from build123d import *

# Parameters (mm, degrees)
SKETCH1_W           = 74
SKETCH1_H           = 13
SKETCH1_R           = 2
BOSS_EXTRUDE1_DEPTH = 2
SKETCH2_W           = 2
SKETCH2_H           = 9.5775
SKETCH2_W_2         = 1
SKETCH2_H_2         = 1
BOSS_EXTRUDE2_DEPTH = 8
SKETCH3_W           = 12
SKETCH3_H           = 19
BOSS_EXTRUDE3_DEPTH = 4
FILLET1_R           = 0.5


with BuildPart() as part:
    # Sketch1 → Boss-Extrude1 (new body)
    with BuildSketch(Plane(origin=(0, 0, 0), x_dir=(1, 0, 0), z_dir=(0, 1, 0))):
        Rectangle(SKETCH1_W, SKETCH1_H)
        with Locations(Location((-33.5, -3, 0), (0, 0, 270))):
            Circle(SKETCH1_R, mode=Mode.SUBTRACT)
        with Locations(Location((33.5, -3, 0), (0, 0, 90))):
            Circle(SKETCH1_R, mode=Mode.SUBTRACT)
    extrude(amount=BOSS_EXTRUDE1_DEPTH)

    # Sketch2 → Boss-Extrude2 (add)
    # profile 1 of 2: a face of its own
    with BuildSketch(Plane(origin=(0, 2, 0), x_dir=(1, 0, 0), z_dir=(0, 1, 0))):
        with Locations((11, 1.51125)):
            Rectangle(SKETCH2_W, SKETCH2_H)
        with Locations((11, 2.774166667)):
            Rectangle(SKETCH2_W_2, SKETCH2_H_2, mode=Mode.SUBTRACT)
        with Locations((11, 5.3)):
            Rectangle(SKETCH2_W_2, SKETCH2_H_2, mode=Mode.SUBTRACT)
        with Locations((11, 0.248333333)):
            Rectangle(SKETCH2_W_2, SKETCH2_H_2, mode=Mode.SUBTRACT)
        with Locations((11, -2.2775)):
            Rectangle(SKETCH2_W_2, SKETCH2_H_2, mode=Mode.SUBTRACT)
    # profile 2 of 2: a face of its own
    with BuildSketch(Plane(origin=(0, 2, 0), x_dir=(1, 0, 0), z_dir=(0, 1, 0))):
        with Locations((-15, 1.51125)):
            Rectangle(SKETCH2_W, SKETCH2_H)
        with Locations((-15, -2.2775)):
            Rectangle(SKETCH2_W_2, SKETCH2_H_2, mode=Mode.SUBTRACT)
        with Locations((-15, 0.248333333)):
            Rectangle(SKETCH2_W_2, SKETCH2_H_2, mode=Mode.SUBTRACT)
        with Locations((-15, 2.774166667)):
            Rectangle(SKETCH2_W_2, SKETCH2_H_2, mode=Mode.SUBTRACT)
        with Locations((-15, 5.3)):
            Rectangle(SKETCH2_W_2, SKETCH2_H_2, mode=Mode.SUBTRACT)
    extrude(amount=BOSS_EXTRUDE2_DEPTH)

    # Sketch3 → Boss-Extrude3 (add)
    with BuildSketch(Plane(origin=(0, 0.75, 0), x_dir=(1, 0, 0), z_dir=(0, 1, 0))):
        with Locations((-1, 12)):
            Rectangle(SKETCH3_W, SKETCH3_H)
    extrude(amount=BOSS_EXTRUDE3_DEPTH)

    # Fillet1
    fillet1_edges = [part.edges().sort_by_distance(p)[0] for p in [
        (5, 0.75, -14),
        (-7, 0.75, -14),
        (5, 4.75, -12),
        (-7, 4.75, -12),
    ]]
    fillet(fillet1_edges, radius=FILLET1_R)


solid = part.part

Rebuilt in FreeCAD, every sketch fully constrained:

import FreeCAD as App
import Part
import Sketcher
from FreeCAD import Vector
Q = App.Units.Quantity


def edges_at(feature, points):
    """Names of the edges that pass closest to the given points."""
    edges = feature.Shape.Edges
    near = lambda p: min(range(len(edges)), key=lambda i: edges[i].distToShape(Part.Vertex(*p))[0])
    return sorted({f"Edge{near(p) + 1}" for p in points})

doc = App.newDocument("Part")
body = doc.addObject("PartDesign::Body", "Body")

sketch1 = doc.addObject("Sketcher::SketchObject", "Sketch")
body.addObject(sketch1)
sketch1.AttachmentSupport = (doc.XZ_Plane, [""])
sketch1.MapMode = "FlatFace"
sketch1.addGeometry(Part.LineSegment(Vector(-37, -6.5, 0), Vector(-37, 6.5, 0)), False)
sketch1.addGeometry(Part.LineSegment(Vector(-37, 6.5, 0), Vector(37, 6.5, 0)), False)
sketch1.addGeometry(Part.LineSegment(Vector(37, 6.5, 0), Vector(37, -6.5, 0)), False)
sketch1.addGeometry(Part.LineSegment(Vector(37, -6.5, 0), Vector(-37, -6.5, 0)), False)
sketch1.addGeometry(Part.Circle(Vector(-33.5, 3, 0), Vector(0, 0, 1), 2), False)
sketch1.addGeometry(Part.Circle(Vector(33.5, 3, 0), Vector(0, 0, 1), 2), False)
sketch1.addConstraint(Sketcher.Constraint("Coincident", 0, 2, 1, 1))
sketch1.addConstraint(Sketcher.Constraint("Coincident", 1, 2, 2, 1))
sketch1.addConstraint(Sketcher.Constraint("Coincident", 2, 2, 3, 1))
sketch1.addConstraint(Sketcher.Constraint("Coincident", 3, 2, 0, 1))
sketch1.addConstraint(Sketcher.Constraint("Vertical", 0))
sketch1.addConstraint(Sketcher.Constraint("Horizontal", 1))
sketch1.addConstraint(Sketcher.Constraint("Vertical", 2))
sketch1.addConstraint(Sketcher.Constraint("Horizontal", 3))
sketch1.addConstraint(Sketcher.Constraint("Equal", 4, 5))
sketch1.addConstraint(Sketcher.Constraint("Symmetric", 0, 2, 2, 2, -1, 1))
sketch1.addConstraint(Sketcher.Constraint("Symmetric", 4, 3, 5, 3, -2))
sketch1.addConstraint(Sketcher.Constraint("Diameter", 4, Q("4 mm")))
sketch1.addConstraint(Sketcher.Constraint("DistanceX", 1, 1, 1, 2, Q("74 mm")))
sketch1.addConstraint(Sketcher.Constraint("DistanceY", 0, 1, 0, 2, Q("13 mm")))
sketch1.addConstraint(Sketcher.Constraint("DistanceY", -1, 1, 4, 3, Q("3 mm")))
sketch1.addConstraint(Sketcher.Constraint("DistanceX", 4, 3, 5, 3, Q("67 mm")))
pad1 = doc.addObject("PartDesign::Pad", "Pad")
body.addObject(pad1)
pad1.Profile = sketch1
pad1.Length = 2
pad1.Reversed = True

sketch2 = doc.addObject("Sketcher::SketchObject", "Sketch001")
body.addObject(sketch2)
sketch2.AttachmentSupport = (doc.XZ_Plane, [""])
sketch2.MapMode = "FlatFace"
sketch2.AttachmentOffset = App.Placement(Vector(0, 0, -2), App.Rotation())
sketch2.addGeometry(Part.LineSegment(Vector(10, -6.3, 0), Vector(10, 3.2775, 0)), False)
sketch2.addGeometry(Part.LineSegment(Vector(10, 3.2775, 0), Vector(12, 3.2775, 0)), False)
sketch2.addGeometry(Part.LineSegment(Vector(12, 3.2775, 0), Vector(12, -6.3, 0)), False)
sketch2.addGeometry(Part.LineSegment(Vector(12, -6.3, 0), Vector(10, -6.3, 0)), False)
sketch2.addGeometry(Part.LineSegment(Vector(11.5, 2.7775, 0), Vector(10.5, 2.7775, 0)), False)
sketch2.addGeometry(Part.LineSegment(Vector(10.5, 2.7775, 0), Vector(10.5, 1.7775, 0)), False)
sketch2.addGeometry(Part.LineSegment(Vector(10.5, 1.7775, 0), Vector(11.5, 1.7775, 0)), False)
sketch2.addGeometry(Part.LineSegment(Vector(11.5, 1.7775, 0), Vector(11.5, 2.7775, 0)), False)
sketch2.addGeometry(Part.LineSegment(Vector(11.5, 0.251667, 0), Vector(10.5, 0.251667, 0)), False)
sketch2.addGeometry(Part.LineSegment(Vector(10.5, 0.251667, 0), Vector(10.5, -0.748333, 0)), False)
sketch2.addGeometry(Part.LineSegment(Vector(10.5, -0.748333, 0), Vector(11.5, -0.748333, 0)), False)
sketch2.addGeometry(Part.LineSegment(Vector(11.5, -0.748333, 0), Vector(11.5, 0.251667, 0)), False)
sketch2.addGeometry(Part.LineSegment(Vector(11.5, -2.274167, 0), Vector(10.5, -2.274167, 0)), False)
sketch2.addGeometry(Part.LineSegment(Vector(10.5, -2.274167, 0), Vector(10.5, -3.274167, 0)), False)
sketch2.addGeometry(Part.LineSegment(Vector(10.5, -3.274167, 0), Vector(11.5, -3.274167, 0)), False)
sketch2.addGeometry(Part.LineSegment(Vector(11.5, -3.274167, 0), Vector(11.5, -2.274167, 0)), False)
sketch2.addGeometry(Part.LineSegment(Vector(11.5, -4.8, 0), Vector(10.5, -4.8, 0)), False)
sketch2.addGeometry(Part.LineSegment(Vector(10.5, -4.8, 0), Vector(10.5, -5.8, 0)), False)
sketch2.addGeometry(Part.LineSegment(Vector(10.5, -5.8, 0), Vector(11.5, -5.8, 0)), False)
sketch2.addGeometry(Part.LineSegment(Vector(11.5, -5.8, 0), Vector(11.5, -4.8, 0)), False)
sketch2.addGeometry(Part.LineSegment(Vector(-16, -6.3, 0), Vector(-16, 3.2775, 0)), False)
sketch2.addGeometry(Part.LineSegment(Vector(-16, 3.2775, 0), Vector(-14, 3.2775, 0)), False)
sketch2.addGeometry(Part.LineSegment(Vector(-14, 3.2775, 0), Vector(-14, -6.3, 0)), False)
sketch2.addGeometry(Part.LineSegment(Vector(-14, -6.3, 0), Vector(-16, -6.3, 0)), False)
sketch2.addGeometry(Part.LineSegment(Vector(-14.5, 2.7775, 0), Vector(-15.5, 2.7775, 0)), False)
sketch2.addGeometry(Part.LineSegment(Vector(-15.5, 2.7775, 0), Vector(-15.5, 1.7775, 0)), False)
sketch2.addGeometry(Part.LineSegment(Vector(-15.5, 1.7775, 0), Vector(-14.5, 1.7775, 0)), False)
sketch2.addGeometry(Part.LineSegment(Vector(-14.5, 1.7775, 0), Vector(-14.5, 2.7775, 0)), False)
sketch2.addGeometry(Part.LineSegment(Vector(-14.5, 0.251667, 0), Vector(-15.5, 0.251667, 0)), False)
sketch2.addGeometry(Part.LineSegment(Vector(-15.5, 0.251667, 0), Vector(-15.5, -0.748333, 0)), False)
sketch2.addGeometry(Part.LineSegment(Vector(-15.5, -0.748333, 0), Vector(-14.5, -0.748333, 0)), False)
sketch2.addGeometry(Part.LineSegment(Vector(-14.5, -0.748333, 0), Vector(-14.5, 0.251667, 0)), False)
sketch2.addGeometry(Part.LineSegment(Vector(-14.5, -2.274167, 0), Vector(-15.5, -2.274167, 0)), False)
sketch2.addGeometry(Part.LineSegment(Vector(-15.5, -2.274167, 0), Vector(-15.5, -3.274167, 0)), False)
sketch2.addGeometry(Part.LineSegment(Vector(-15.5, -3.274167, 0), Vector(-14.5, -3.274167, 0)), False)
sketch2.addGeometry(Part.LineSegment(Vector(-14.5, -3.274167, 0), Vector(-14.5, -2.274167, 0)), False)
sketch2.addGeometry(Part.LineSegment(Vector(-14.5, -4.8, 0), Vector(-15.5, -4.8, 0)), False)
sketch2.addGeometry(Part.LineSegment(Vector(-15.5, -4.8, 0), Vector(-15.5, -5.8, 0)), False)
sketch2.addGeometry(Part.LineSegment(Vector(-15.5, -5.8, 0), Vector(-14.5, -5.8, 0)), False)
sketch2.addGeometry(Part.LineSegment(Vector(-14.5, -5.8, 0), Vector(-14.5, -4.8, 0)), False)
sketch2.addConstraint(Sketcher.Constraint("Coincident", 0, 2, 1, 1))
sketch2.addConstraint(Sketcher.Constraint("Coincident", 1, 2, 2, 1))
sketch2.addConstraint(Sketcher.Constraint("Coincident", 2, 2, 3, 1))
sketch2.addConstraint(Sketcher.Constraint("Coincident", 3, 2, 0, 1))
sketch2.addConstraint(Sketcher.Constraint("Coincident", 4, 2, 5, 1))
sketch2.addConstraint(Sketcher.Constraint("Coincident", 5, 2, 6, 1))
sketch2.addConstraint(Sketcher.Constraint("Coincident", 6, 2, 7, 1))
sketch2.addConstraint(Sketcher.Constraint("Coincident", 7, 2, 4, 1))
sketch2.addConstraint(Sketcher.Constraint("Coincident", 8, 2, 9, 1))
sketch2.addConstraint(Sketcher.Constraint("Coincident", 9, 2, 10, 1))
sketch2.addConstraint(Sketcher.Constraint("Coincident", 10, 2, 11, 1))
sketch2.addConstraint(Sketcher.Constraint("Coincident", 11, 2, 8, 1))
sketch2.addConstraint(Sketcher.Constraint("Coincident", 12, 2, 13, 1))
sketch2.addConstraint(Sketcher.Constraint("Coincident", 13, 2, 14, 1))
sketch2.addConstraint(Sketcher.Constraint("Coincident", 14, 2, 15, 1))
sketch2.addConstraint(Sketcher.Constraint("Coincident", 15, 2, 12, 1))
sketch2.addConstraint(Sketcher.Constraint("Coincident", 16, 2, 17, 1))
sketch2.addConstraint(Sketcher.Constraint("Coincident", 17, 2, 18, 1))
sketch2.addConstraint(Sketcher.Constraint("Coincident", 18, 2, 19, 1))
sketch2.addConstraint(Sketcher.Constraint("Coincident", 19, 2, 16, 1))
sketch2.addConstraint(Sketcher.Constraint("Coincident", 20, 2, 21, 1))
sketch2.addConstraint(Sketcher.Constraint("Coincident", 21, 2, 22, 1))
sketch2.addConstraint(Sketcher.Constraint("Coincident", 22, 2, 23, 1))
sketch2.addConstraint(Sketcher.Constraint("Coincident", 23, 2, 20, 1))
sketch2.addConstraint(Sketcher.Constraint("Coincident", 24, 2, 25, 1))
sketch2.addConstraint(Sketcher.Constraint("Coincident", 25, 2, 26, 1))
sketch2.addConstraint(Sketcher.Constraint("Coincident", 26, 2, 27, 1))
sketch2.addConstraint(Sketcher.Constraint("Coincident", 27, 2, 24, 1))
sketch2.addConstraint(Sketcher.Constraint("Coincident", 28, 2, 29, 1))
sketch2.addConstraint(Sketcher.Constraint("Coincident", 29, 2, 30, 1))
sketch2.addConstraint(Sketcher.Constraint("Coincident", 30, 2, 31, 1))
sketch2.addConstraint(Sketcher.Constraint("Coincident", 31, 2, 28, 1))
sketch2.addConstraint(Sketcher.Constraint("Coincident", 32, 2, 33, 1))
sketch2.addConstraint(Sketcher.Constraint("Coincident", 33, 2, 34, 1))
sketch2.addConstraint(Sketcher.Constraint("Coincident", 34, 2, 35, 1))
sketch2.addConstraint(Sketcher.Constraint("Coincident", 35, 2, 32, 1))
sketch2.addConstraint(Sketcher.Constraint("Coincident", 36, 2, 37, 1))
sketch2.addConstraint(Sketcher.Constraint("Coincident", 37, 2, 38, 1))
sketch2.addConstraint(Sketcher.Constraint("Coincident", 38, 2, 39, 1))
sketch2.addConstraint(Sketcher.Constraint("Coincident", 39, 2, 36, 1))
sketch2.addConstraint(Sketcher.Constraint("Vertical", 0))
sketch2.addConstraint(Sketcher.Constraint("Horizontal", 1))
sketch2.addConstraint(Sketcher.Constraint("Vertical", 2))
sketch2.addConstraint(Sketcher.Constraint("Horizontal", 3))
sketch2.addConstraint(Sketcher.Constraint("Horizontal", 4))
sketch2.addConstraint(Sketcher.Constraint("Vertical", 5))
sketch2.addConstraint(Sketcher.Constraint("Horizontal", 6))
sketch2.addConstraint(Sketcher.Constraint("Vertical", 7))
sketch2.addConstraint(Sketcher.Constraint("Horizontal", 8))
sketch2.addConstraint(Sketcher.Constraint("Vertical", 9))
sketch2.addConstraint(Sketcher.Constraint("Horizontal", 10))
sketch2.addConstraint(Sketcher.Constraint("Vertical", 11))
sketch2.addConstraint(Sketcher.Constraint("Horizontal", 12))
sketch2.addConstraint(Sketcher.Constraint("Vertical", 13))
sketch2.addConstraint(Sketcher.Constraint("Horizontal", 14))
sketch2.addConstraint(Sketcher.Constraint("Vertical", 15))
sketch2.addConstraint(Sketcher.Constraint("Horizontal", 16))
sketch2.addConstraint(Sketcher.Constraint("Vertical", 17))
sketch2.addConstraint(Sketcher.Constraint("Horizontal", 18))
sketch2.addConstraint(Sketcher.Constraint("Vertical", 19))
sketch2.addConstraint(Sketcher.Constraint("Vertical", 20))
sketch2.addConstraint(Sketcher.Constraint("Horizontal", 21))
sketch2.addConstraint(Sketcher.Constraint("Vertical", 22))
sketch2.addConstraint(Sketcher.Constraint("Horizontal", 23))
sketch2.addConstraint(Sketcher.Constraint("Horizontal", 24))
sketch2.addConstraint(Sketcher.Constraint("Vertical", 25))
sketch2.addConstraint(Sketcher.Constraint("Horizontal", 26))
sketch2.addConstraint(Sketcher.Constraint("Vertical", 27))
sketch2.addConstraint(Sketcher.Constraint("Horizontal", 28))
sketch2.addConstraint(Sketcher.Constraint("Vertical", 29))
sketch2.addConstraint(Sketcher.Constraint("Horizontal", 30))
sketch2.addConstraint(Sketcher.Constraint("Vertical", 31))
sketch2.addConstraint(Sketcher.Constraint("Horizontal", 32))
sketch2.addConstraint(Sketcher.Constraint("Vertical", 33))
sketch2.addConstraint(Sketcher.Constraint("Horizontal", 34))
sketch2.addConstraint(Sketcher.Constraint("Vertical", 35))
sketch2.addConstraint(Sketcher.Constraint("Horizontal", 36))
sketch2.addConstraint(Sketcher.Constraint("Vertical", 37))
sketch2.addConstraint(Sketcher.Constraint("Horizontal", 38))
sketch2.addConstraint(Sketcher.Constraint("Vertical", 39))
sketch2.addConstraint(Sketcher.Constraint("Horizontal", 1, 2, 20, 2))
sketch2.addConstraint(Sketcher.Constraint("Horizontal", 3, 2, 22, 2))
sketch2.addConstraint(Sketcher.Constraint("Horizontal", 7, 2, 24, 2))
sketch2.addConstraint(Sketcher.Constraint("Horizontal", 6, 2, 25, 2))
sketch2.addConstraint(Sketcher.Constraint("Horizontal", 11, 2, 28, 2))
sketch2.addConstraint(Sketcher.Constraint("Horizontal", 10, 2, 29, 2))
sketch2.addConstraint(Sketcher.Constraint("Horizontal", 15, 2, 32, 2))
sketch2.addConstraint(Sketcher.Constraint("Horizontal", 14, 2, 33, 2))
sketch2.addConstraint(Sketcher.Constraint("Horizontal", 19, 2, 36, 2))
sketch2.addConstraint(Sketcher.Constraint("Horizontal", 18, 2, 37, 2))
sketch2.addConstraint(Sketcher.Constraint("Vertical", 5, 2, 8, 2))
sketch2.addConstraint(Sketcher.Constraint("Vertical", 7, 2, 10, 2))
sketch2.addConstraint(Sketcher.Constraint("Vertical", 9, 2, 12, 2))
sketch2.addConstraint(Sketcher.Constraint("Vertical", 11, 2, 14, 2))
sketch2.addConstraint(Sketcher.Constraint("Vertical", 13, 2, 16, 2))
sketch2.addConstraint(Sketcher.Constraint("Vertical", 15, 2, 18, 2))
sketch2.addConstraint(Sketcher.Constraint("Vertical", 25, 2, 28, 2))
sketch2.addConstraint(Sketcher.Constraint("Vertical", 27, 2, 30, 2))
sketch2.addConstraint(Sketcher.Constraint("Vertical", 29, 2, 32, 2))
sketch2.addConstraint(Sketcher.Constraint("Vertical", 31, 2, 34, 2))
sketch2.addConstraint(Sketcher.Constraint("Vertical", 33, 2, 36, 2))
sketch2.addConstraint(Sketcher.Constraint("Vertical", 35, 2, 38, 2))
sketch2.addConstraint(Sketcher.Constraint("Equal", 3, 21))
sketch2.addConstraint(Sketcher.Constraint("Equal", 18, 24))
sketch2.addConstraint(Sketcher.Constraint("Equal", 38, 5))
sketch2.addConstraint(Sketcher.Constraint("Equal", 7, 9))
sketch2.addConstraint(Sketcher.Constraint("Equal", 11, 13))
sketch2.addConstraint(Sketcher.Constraint("Equal", 15, 17))
sketch2.addConstraint(Sketcher.Constraint("DistanceX", 1, 1, 1, 2, Q("2 mm")))
sketch2.addConstraint(Sketcher.Constraint("DistanceX", 4, 2, 4, 1, Q("1 mm")))
sketch2.addConstraint(Sketcher.Constraint("DistanceX", -1, 1, 0, 2, Q("10 mm")))
sketch2.addConstraint(Sketcher.Constraint("DistanceX", 20, 2, -1, 1, Q("16 mm")))
sketch2.addConstraint(Sketcher.Constraint("DistanceY", 2, 2, -1, 1, Q("6.3 mm")))
sketch2.addConstraint(Sketcher.Constraint("DistanceX", -1, 1, 4, 2, Q("10.5 mm")))
sketch2.addConstraint(Sketcher.Constraint("DistanceY", 16, 2, -1, 1, Q("4.8 mm")))
sketch2.addConstraint(Sketcher.Constraint("DistanceX", 24, 2, -1, 1, Q("15.5 mm")))
sketch2.addConstraint(Sketcher.Constraint("DistanceY", 4, 2, 0, 2, Q("0.5 mm")))
sketch2.addConstraint(Sketcher.Constraint("DistanceY", 0, 1, 0, 2, Q("9.5775 mm")))
sketch2.addConstraint(Sketcher.Constraint("DistanceY", -1, 1, 8, 2, Q("0.251667 mm")))
sketch2.addConstraint(Sketcher.Constraint("DistanceY", 12, 2, -1, 1, Q("2.274167 mm")))
pad2 = doc.addObject("PartDesign::Pad", "Pad001")
body.addObject(pad2)
pad2.Profile = sketch2
pad2.Length = 8
pad2.Reversed = True

sketch3 = doc.addObject("Sketcher::SketchObject", "Sketch002")
body.addObject(sketch3)
sketch3.AttachmentSupport = (doc.XZ_Plane, [""])
sketch3.MapMode = "FlatFace"
sketch3.AttachmentOffset = App.Placement(Vector(0, 0, -0.75), App.Rotation())
sketch3.addGeometry(Part.LineSegment(Vector(-7, -21.5, 0), Vector(-7, -2.5, 0)), False)
sketch3.addGeometry(Part.LineSegment(Vector(-7, -2.5, 0), Vector(5, -2.5, 0)), False)
sketch3.addGeometry(Part.LineSegment(Vector(5, -2.5, 0), Vector(5, -21.5, 0)), False)
sketch3.addGeometry(Part.LineSegment(Vector(5, -21.5, 0), Vector(-7, -21.5, 0)), False)
sketch3.addConstraint(Sketcher.Constraint("Coincident", 0, 2, 1, 1))
sketch3.addConstraint(Sketcher.Constraint("Coincident", 1, 2, 2, 1))
sketch3.addConstraint(Sketcher.Constraint("Coincident", 2, 2, 3, 1))
sketch3.addConstraint(Sketcher.Constraint("Coincident", 3, 2, 0, 1))
sketch3.addConstraint(Sketcher.Constraint("Vertical", 0))
sketch3.addConstraint(Sketcher.Constraint("Horizontal", 1))
sketch3.addConstraint(Sketcher.Constraint("Vertical", 2))
sketch3.addConstraint(Sketcher.Constraint("Horizontal", 3))
sketch3.addConstraint(Sketcher.Constraint("DistanceX", 1, 1, 1, 2, Q("12 mm")))
sketch3.addConstraint(Sketcher.Constraint("DistanceY", 0, 1, 0, 2, Q("19 mm")))
sketch3.addConstraint(Sketcher.Constraint("DistanceX", 0, 2, -1, 1, Q("7 mm")))
sketch3.addConstraint(Sketcher.Constraint("DistanceY", 0, 2, -1, 1, Q("2.5 mm")))
pad3 = doc.addObject("PartDesign::Pad", "Pad002")
body.addObject(pad3)
pad3.Profile = sketch3
pad3.Length = 4
pad3.Reversed = True
doc.recompute()

fillet = doc.addObject("PartDesign::Fillet", "Fillet")
body.addObject(fillet)
fillet.Base = (pad3, edges_at(pad3, [
    (5, 0.75, -14),
    (-7, 0.75, -14),
    (5, 4.75, -12),
    (-7, 4.75, -12),
]))
fillet.Radius = 0.5

doc.recompute()
